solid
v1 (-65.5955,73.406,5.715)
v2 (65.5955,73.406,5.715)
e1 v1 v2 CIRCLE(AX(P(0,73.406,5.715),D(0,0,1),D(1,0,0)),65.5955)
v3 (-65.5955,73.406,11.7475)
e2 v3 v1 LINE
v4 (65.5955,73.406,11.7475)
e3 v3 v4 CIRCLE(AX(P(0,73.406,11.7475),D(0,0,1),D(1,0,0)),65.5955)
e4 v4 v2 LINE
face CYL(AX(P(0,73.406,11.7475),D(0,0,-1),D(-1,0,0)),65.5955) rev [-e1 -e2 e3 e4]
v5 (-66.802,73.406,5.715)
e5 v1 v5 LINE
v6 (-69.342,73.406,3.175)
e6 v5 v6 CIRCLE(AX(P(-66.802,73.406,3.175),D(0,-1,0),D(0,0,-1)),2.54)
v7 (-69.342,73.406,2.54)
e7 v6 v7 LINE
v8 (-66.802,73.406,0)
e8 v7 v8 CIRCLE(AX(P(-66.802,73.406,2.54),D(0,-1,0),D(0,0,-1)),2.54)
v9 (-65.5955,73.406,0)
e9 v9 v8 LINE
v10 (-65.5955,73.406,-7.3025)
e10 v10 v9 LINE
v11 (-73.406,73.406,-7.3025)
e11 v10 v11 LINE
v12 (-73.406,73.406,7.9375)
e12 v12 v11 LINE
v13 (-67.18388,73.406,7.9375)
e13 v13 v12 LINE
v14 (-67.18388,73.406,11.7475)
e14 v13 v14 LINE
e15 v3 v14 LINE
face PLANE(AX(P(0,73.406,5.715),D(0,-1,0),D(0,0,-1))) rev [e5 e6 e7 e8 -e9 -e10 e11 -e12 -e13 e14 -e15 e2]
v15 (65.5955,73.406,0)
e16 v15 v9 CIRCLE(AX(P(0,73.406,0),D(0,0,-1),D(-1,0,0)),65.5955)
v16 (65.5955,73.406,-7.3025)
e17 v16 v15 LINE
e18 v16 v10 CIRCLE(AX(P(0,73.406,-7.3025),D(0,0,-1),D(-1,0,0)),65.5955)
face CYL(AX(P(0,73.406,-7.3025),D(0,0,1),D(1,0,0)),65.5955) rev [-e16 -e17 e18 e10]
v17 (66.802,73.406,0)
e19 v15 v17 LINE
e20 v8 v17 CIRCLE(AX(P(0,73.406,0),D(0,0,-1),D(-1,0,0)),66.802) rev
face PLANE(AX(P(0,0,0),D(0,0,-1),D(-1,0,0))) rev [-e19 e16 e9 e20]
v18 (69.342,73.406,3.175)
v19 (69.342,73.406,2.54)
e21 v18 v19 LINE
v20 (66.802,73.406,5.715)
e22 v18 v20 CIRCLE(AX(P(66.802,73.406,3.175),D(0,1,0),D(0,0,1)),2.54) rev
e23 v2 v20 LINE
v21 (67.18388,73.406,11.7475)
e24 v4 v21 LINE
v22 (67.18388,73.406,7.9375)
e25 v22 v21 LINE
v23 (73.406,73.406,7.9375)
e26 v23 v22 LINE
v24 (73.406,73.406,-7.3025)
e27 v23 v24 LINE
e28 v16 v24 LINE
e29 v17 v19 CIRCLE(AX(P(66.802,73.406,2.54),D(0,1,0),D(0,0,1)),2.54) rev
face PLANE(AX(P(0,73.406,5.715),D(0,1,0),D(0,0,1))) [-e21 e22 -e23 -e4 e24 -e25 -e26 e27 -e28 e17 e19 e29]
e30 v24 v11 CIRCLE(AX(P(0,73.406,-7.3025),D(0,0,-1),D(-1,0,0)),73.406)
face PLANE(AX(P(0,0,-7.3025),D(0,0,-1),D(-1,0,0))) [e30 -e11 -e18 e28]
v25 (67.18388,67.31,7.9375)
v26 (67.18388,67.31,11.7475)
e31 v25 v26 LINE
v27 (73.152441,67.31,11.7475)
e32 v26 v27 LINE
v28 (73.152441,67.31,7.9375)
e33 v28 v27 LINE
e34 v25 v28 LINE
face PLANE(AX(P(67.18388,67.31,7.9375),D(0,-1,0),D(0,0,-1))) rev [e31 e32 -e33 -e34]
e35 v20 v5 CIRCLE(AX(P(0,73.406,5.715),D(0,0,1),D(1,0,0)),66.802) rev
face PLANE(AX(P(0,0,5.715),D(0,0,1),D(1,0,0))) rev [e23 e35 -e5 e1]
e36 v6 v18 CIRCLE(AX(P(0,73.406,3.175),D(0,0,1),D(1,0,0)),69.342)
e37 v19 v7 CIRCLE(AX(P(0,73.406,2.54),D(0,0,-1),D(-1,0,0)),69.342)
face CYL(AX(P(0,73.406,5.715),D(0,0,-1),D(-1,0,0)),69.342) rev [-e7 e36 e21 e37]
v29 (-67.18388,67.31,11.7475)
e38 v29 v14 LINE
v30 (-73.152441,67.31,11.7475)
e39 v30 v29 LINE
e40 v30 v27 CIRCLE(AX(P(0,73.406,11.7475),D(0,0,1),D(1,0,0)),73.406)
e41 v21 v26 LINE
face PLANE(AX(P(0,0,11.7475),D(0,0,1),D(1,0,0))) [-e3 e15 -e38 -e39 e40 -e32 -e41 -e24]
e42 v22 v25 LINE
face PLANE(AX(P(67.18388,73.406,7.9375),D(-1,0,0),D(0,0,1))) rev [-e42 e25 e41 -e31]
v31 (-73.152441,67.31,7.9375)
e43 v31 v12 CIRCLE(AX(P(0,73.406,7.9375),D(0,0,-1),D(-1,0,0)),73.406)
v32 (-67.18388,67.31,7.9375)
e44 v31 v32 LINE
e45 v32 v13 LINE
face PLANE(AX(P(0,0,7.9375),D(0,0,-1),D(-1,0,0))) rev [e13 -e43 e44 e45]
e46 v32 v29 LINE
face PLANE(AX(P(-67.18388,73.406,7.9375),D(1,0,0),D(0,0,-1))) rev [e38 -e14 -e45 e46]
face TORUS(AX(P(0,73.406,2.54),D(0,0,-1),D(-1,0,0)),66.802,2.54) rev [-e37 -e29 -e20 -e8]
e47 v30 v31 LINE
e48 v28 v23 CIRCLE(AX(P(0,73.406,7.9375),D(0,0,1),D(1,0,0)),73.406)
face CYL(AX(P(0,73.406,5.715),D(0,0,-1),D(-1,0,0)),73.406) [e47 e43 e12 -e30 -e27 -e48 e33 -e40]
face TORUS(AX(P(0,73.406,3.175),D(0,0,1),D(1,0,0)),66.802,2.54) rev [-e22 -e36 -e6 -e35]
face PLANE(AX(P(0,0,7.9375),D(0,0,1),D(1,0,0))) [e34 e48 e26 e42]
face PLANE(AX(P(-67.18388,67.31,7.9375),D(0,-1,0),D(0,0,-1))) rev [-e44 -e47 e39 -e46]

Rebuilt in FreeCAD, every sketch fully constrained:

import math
import FreeCAD as App
import Part
import Sketcher

V = App.Vector
Q = App.Units.Quantity


def edges_at(feature, points):
    """Names of the edges that pass closest to the given points."""
    edges = feature.Shape.Edges
    near = lambda p: min(range(len(edges)), key=lambda i: edges[i].distToShape(Part.Vertex(*p))[0])
    return sorted({f"Edge{near(p) + 1}" for p in points})

doc = App.newDocument("Part")
body = doc.addObject("PartDesign::Body", "Body")

# Sketch on XY plane
sketch1 = body.newObject("Sketcher::SketchObject", "Sketch")
sketch1.AttachmentSupport = (doc.getObject("XY_Plane"), [""])
sketch1.MapMode = "FlatFace"
sketch1.addGeometry(Part.ArcOfCircle(Part.Circle(V(0, 73.406, 0), V(0, 0, 1), 69.342), math.radians(180), math.radians(360)), False)
sketch1.addGeometry(Part.LineSegment(V(-69.342, 73.406, 0), V(-73.406, 73.406, 0)), False)
sketch1.addGeometry(Part.ArcOfCircle(Part.Circle(V(0, 73.406, 0), V(0, 0, 1), 73.406), math.radians(180), math.radians(360)), False)
sketch1.addGeometry(Part.LineSegment(V(73.406, 73.406, 0), V(69.342, 73.406, 0)), False)
sketch1.addConstraint(Sketcher.Constraint("Coincident", 0, 1, 1, 1))
sketch1.addConstraint(Sketcher.Constraint("Coincident", 1, 2, 2, 1))
sketch1.addConstraint(Sketcher.Constraint("Coincident", 2, 2, 3, 1))
sketch1.addConstraint(Sketcher.Constraint("Coincident", 3, 2, 0, 2))
sketch1.addConstraint(Sketcher.Constraint("Horizontal", 1))
sketch1.addConstraint(Sketcher.Constraint("Horizontal", 3))
sketch1.addConstraint(Sketcher.Constraint("Coincident", 2, 3, 0, 3))
sketch1.addConstraint(Sketcher.Constraint("Symmetric", 1, 2, 2, 2, -2))
sketch1.addConstraint(Sketcher.Constraint("Horizontal", 2, 3, 0, 1))
sketch1.addConstraint(Sketcher.Constraint("Radius", 0, Q("2.73 in")))
sketch1.addConstraint(Sketcher.Constraint("Radius", 2, Q("2.89 in")))
sketch1.addConstraint(Sketcher.Constraint("DistanceY", -1, 1, 0, 3, Q("2.89 in")))
pad1 = body.newObject("PartDesign::Pad", "Pad")
pad1.Profile = sketch1
pad1.Length = Q("0.225 in")

# Sketch on XY plane
sketch2 = body.newObject("Sketcher::SketchObject", "Sketch001")
sketch2.AttachmentSupport = (doc.getObject("XY_Plane"), [""])
sketch2.MapMode = "FlatFace"
sketch2.AttachmentOffset = App.Placement(V(0, 0, 0.225 * 25.4), App.Rotation())
sketch2.addGeometry(Part.ArcOfCircle(Part.Circle(V(0, 73.406, 0), V(0, 0, 1), 65.5955), math.radians(180), math.radians(360)), False)
sketch2.addGeometry(Part.LineSegment(V(-65.5955, 73.406, 0), V(-73.406, 73.406, 0)), False)
sketch2.addGeometry(Part.ArcOfCircle(Part.Circle(V(0, 73.406, 0), V(0, 0, 1), 73.406), math.radians(180), math.radians(360)), False)
sketch2.addGeometry(Part.LineSegment(V(73.406, 73.406, 0), V(65.5955, 73.406, 0)), False)
sketch2.addConstraint(Sketcher.Constraint("Coincident", 0, 1, 1, 1))
sketch2.addConstraint(Sketcher.Constraint("Coincident", 1, 2, 2, 1))
sketch2.addConstraint(Sketcher.Constraint("Coincident", 2, 2, 3, 1))
sketch2.addConstraint(Sketcher.Constraint("Coincident", 3, 2, 0, 2))
sketch2.addConstraint(Sketcher.Constraint("Horizontal", 1))
sketch2.addConstraint(Sketcher.Constraint("Horizontal", 3))
sketch2.addConstraint(Sketcher.Constraint("Coincident", 2, 3, 0, 3))
sketch2.addConstraint(Sketcher.Constraint("Symmetric", 1, 2, 2, 2, -2))
sketch2.addConstraint(Sketcher.Constraint("Horizontal", 2, 3, 0, 1))
sketch2.addConstraint(Sketcher.Constraint("Radius", 2, Q("2.89 in")))
sketch2.addConstraint(Sketcher.Constraint("Radius", 0, Q("2.5825 in")))
sketch2.addConstraint(Sketcher.Constraint("DistanceY", -1, 1, 0, 3, Q("2.89 in")))
pad2 = body.newObject("PartDesign::Pad", "Pad001")
pad2.Profile = sketch2
pad2.Length = Q("0.2375 in")

# Sketch on XY plane
sketch3 = body.newObject("Sketcher::SketchObject", "Sketch002")
sketch3.AttachmentSupport = (doc.getObject("XY_Plane"), [""])
sketch3.MapMode = "FlatFace"
sketch3.AttachmentOffset = App.Placement(V(0, 0, -0.2875 * 25.4), App.Rotation())
sketch3.addGeometry(Part.ArcOfCircle(Part.Circle(V(0, 73.406, 0), V(0, 0, 1), 65.5955), math.radians(180), math.radians(360)), False)
sketch3.addGeometry(Part.LineSegment(V(65.5955, 73.406, 0), V(73.406, 73.406, 0)), False)
sketch3.addGeometry(Part.ArcOfCircle(Part.Circle(V(0, 73.406, 0), V(0, 0, 1), 73.406), math.radians(180), math.radians(360)), False)
sketch3.addGeometry(Part.LineSegment(V(-73.406, 73.406, 0), V(-65.5955, 73.406, 0)), False)
sketch3.addConstraint(Sketcher.Constraint("Coincident", 0, 2, 1, 1))
sketch3.addConstraint(Sketcher.Constraint("Coincident", 1, 2, 2, 2))
sketch3.addConstraint(Sketcher.Constraint("Coincident", 2, 1, 3, 1))
sketch3.addConstraint(Sketcher.Constraint("Coincident", 3, 2, 0, 1))
sketch3.addConstraint(Sketcher.Constraint("Horizontal", 1))
sketch3.addConstraint(Sketcher.Constraint("Horizontal", 3))
sketch3.addConstraint(Sketcher.Constraint("Coincident", 2, 3, 0, 3))
sketch3.addConstraint(Sketcher.Constraint("Symmetric", 1, 2, 2, 1, -2))
sketch3.addConstraint(Sketcher.Constraint("Horizontal", 2, 3, 0, 2))
sketch3.addConstraint(Sketcher.Constraint("Radius", 2, Q("2.89 in")))
sketch3.addConstraint(Sketcher.Constraint("Radius", 0, Q("2.5825 in")))
sketch3.addConstraint(Sketcher.Constraint("DistanceY", -1, 1, 0, 3, Q("2.89 in")))
pad3 = body.newObject("PartDesign::Pad", "Pad002")
pad3.Profile = sketch3
pad3.Length = Q("0.2875 in")
doc.recompute()

fillet = body.newObject("PartDesign::Fillet", "Fillet")
fillet.Base = (pad3, edges_at(pad3, [(0, 4.064, 5.715), (0, 4.064, 0)]))
fillet.Radius = Q("0.1 in")

# Sketch on XY plane
sketch4 = body.newObject("Sketcher::SketchObject", "Sketch003")
sketch4.AttachmentSupport = (doc.getObject("XY_Plane"), [""])
sketch4.MapMode = "FlatFace"
sketch4.AttachmentOffset = App.Placement(V(0, 0, 0.4625 * 25.4), App.Rotation())
sketch4.addGeometry(Part.LineSegment(V(-73.829374, 73.406, 0), V(-73.829374, 67.31, 0)), False)
sketch4.addGeometry(Part.LineSegment(V(-73.829374, 67.31, 0), V(-67.18388, 67.31, 0)), False)
sketch4.addGeometry(Part.LineSegment(V(-67.18388, 67.31, 0), V(-67.18388, 73.406, 0)), False)
sketch4.addGeometry(Part.LineSegment(V(-67.18388, 73.406, 0), V(-73.829374, 73.406, 0)), False)
sketch4.addGeometry(Part.LineSegment(V(67.18388, 73.406, 0), V(67.18388, 67.31, 0)), False)
sketch4.addGeometry(Part.LineSegment(V(67.18388, 67.31, 0), V(73.829374, 67.31, 0)), False)
sketch4.addGeometry(Part.LineSegment(V(73.829374, 67.31, 0), V(73.829374, 73.406, 0)), False)
sketch4.addGeometry(Part.LineSegment(V(73.829374, 73.406, 0), V(67.18388, 73.406, 0)), False)
sketch4.addConstraint(Sketcher.Constraint("Coincident", 0, 2, 1, 1))
sketch4.addConstraint(Sketcher.Constraint("Coincident", 1, 2, 2, 1))
sketch4.addConstraint(Sketcher.Constraint("Coincident", 2, 2, 3, 1))
sketch4.addConstraint(Sketcher.Constraint("Coincident", 3, 2, 0, 1))
sketch4.addConstraint(Sketcher.Constraint("Coincident", 4, 2, 5, 1))
sketch4.addConstraint(Sketcher.Constraint("Coincident", 5, 2, 6, 1))
sketch4.addConstraint(Sketcher.Constraint("Coincident", 6, 2, 7, 1))
sketch4.addConstraint(Sketcher.Constraint("Coincident", 7, 2, 4, 1))
sketch4.addConstraint(Sketcher.Constraint("Vertical", 0))
sketch4.addConstraint(Sketcher.Constraint("Horizontal", 1))
sketch4.addConstraint(Sketcher.Constraint("Vertical", 2))
sketch4.addConstraint(Sketcher.Constraint("Horizontal", 3))
sketch4.addConstraint(Sketcher.Constraint("Vertical", 4))
sketch4.addConstraint(Sketcher.Constraint("Horizontal", 5))
sketch4.addConstraint(Sketcher.Constraint("Vertical", 6))
sketch4.addConstraint(Sketcher.Constraint("Horizontal", 7))
sketch4.addConstraint(Sketcher.Constraint("Symmetric", 1, 2, 4, 2, -2))
sketch4.addConstraint(Sketcher.Constraint("Symmetric", 3, 2, 6, 2, -2))
sketch4.addConstraint(Sketcher.Constraint("DistanceY", 0, 2, 0, 1, Q("0.24 in")))
sketch4.addConstraint(Sketcher.Constraint("DistanceY", -1, 1, 0, 2, Q("2.65 in")))
sketch4.addConstraint(Sketcher.Constraint("DistanceX", 1, 1, 1, 2, 6.645493))
sketch4.addConstraint(Sketcher.Constraint("DistanceX", 1, 2, -1, 1, 67.18388))
pocket1 = body.newObject("PartDesign::Pocket", "Pocket")
pocket1.Profile = sketch4
pocket1.Length = Q("0.15 in")

doc.recompute()
